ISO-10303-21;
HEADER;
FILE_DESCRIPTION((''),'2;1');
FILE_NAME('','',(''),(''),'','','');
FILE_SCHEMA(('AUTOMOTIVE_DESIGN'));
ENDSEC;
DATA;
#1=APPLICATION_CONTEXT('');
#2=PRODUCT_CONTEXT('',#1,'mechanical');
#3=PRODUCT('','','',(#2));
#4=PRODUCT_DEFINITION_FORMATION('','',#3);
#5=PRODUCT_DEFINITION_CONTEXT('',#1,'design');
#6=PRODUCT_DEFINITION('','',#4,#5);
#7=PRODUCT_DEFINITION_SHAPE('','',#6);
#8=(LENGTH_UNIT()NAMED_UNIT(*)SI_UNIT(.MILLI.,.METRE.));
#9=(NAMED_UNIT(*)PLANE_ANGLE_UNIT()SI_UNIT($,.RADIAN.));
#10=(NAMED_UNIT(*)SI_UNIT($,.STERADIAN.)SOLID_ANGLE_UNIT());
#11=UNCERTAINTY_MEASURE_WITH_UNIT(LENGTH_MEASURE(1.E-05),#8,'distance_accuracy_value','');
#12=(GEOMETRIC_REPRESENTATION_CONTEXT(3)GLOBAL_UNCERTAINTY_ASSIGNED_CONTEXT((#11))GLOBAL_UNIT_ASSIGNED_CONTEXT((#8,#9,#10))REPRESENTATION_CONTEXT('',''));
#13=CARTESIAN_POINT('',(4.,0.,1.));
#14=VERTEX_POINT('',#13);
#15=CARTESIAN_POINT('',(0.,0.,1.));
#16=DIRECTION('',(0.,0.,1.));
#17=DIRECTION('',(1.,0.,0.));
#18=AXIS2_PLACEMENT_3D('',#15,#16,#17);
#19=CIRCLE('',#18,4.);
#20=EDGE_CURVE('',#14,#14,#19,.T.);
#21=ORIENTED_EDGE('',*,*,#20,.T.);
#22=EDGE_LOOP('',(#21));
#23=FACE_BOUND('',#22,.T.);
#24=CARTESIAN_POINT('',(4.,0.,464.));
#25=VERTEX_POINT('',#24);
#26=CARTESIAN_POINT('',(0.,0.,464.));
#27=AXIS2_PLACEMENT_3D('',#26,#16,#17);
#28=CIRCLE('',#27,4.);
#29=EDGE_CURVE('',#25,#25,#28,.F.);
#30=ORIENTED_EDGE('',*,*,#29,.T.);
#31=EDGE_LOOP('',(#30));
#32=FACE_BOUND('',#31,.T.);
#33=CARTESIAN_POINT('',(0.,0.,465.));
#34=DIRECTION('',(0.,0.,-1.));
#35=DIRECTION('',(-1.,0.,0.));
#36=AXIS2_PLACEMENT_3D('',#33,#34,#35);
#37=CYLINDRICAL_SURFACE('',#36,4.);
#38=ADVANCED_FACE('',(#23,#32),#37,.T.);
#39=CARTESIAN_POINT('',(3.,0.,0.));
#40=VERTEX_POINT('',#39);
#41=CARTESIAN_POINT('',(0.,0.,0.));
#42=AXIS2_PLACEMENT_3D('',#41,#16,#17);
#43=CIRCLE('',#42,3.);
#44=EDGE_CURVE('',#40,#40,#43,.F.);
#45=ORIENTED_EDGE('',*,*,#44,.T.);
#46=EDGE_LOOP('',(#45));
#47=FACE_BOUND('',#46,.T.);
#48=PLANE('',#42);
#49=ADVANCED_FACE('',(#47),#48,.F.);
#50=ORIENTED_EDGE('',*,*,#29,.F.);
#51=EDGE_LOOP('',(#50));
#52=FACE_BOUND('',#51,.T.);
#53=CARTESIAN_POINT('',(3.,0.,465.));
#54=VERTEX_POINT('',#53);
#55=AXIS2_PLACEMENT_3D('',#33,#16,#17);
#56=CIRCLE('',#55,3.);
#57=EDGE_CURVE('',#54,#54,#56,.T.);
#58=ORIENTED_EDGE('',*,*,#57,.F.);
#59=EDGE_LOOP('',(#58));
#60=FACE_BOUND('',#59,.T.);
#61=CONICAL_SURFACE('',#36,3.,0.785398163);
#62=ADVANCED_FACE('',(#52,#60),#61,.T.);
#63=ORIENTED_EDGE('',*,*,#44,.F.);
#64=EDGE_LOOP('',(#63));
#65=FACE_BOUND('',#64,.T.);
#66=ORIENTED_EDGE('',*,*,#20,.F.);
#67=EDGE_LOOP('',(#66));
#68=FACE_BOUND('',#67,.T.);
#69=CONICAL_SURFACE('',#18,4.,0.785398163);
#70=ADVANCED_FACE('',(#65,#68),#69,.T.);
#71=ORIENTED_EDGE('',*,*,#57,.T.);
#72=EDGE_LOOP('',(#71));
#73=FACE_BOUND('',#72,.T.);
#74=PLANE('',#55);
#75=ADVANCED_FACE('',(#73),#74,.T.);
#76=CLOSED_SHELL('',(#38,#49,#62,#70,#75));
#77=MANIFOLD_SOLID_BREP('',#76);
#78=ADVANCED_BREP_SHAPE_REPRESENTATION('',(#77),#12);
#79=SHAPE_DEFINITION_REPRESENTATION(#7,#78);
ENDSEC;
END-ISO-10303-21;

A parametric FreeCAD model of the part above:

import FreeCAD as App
import Part
import Sketcher
from FreeCAD import Vector


def edges_at(feature, points):
    """Names of the edges that pass closest to the given points."""
    edges = feature.Shape.Edges
    near = lambda p: min(range(len(edges)), key=lambda i: edges[i].distToShape(Part.Vertex(*p))[0])
    return sorted({f"Edge{near(p) + 1}" for p in points})

doc = App.newDocument("Part")
body = doc.addObject("PartDesign::Body", "Body")

sketch1 = body.newObject("Sketcher::SketchObject", "Sketch")
sketch1.AttachmentSupport = (doc.getObject("XY_Plane"), [""])
sketch1.MapMode = "FlatFace"
sketch1.addGeometry(Part.Circle(Vector(0, 0, 0), Vector(0, 0, 1), 4), False)
sketch1.addConstraint([
    Sketcher.Constraint("Coincident", 0, 3, -1, 1),
    Sketcher.Constraint("Diameter", 0, 8.0),
])
pad1 = body.newObject("PartDesign::Pad", "Pad")
pad1.Profile = sketch1
pad1.Length = 465
doc.recompute()

chamfer = body.newObject("PartDesign::Chamfer", "Chamfer")
chamfer.Base = (pad1, edges_at(pad1, [(-4, 0, 0), (-4, 0, 465)]))
chamfer.Size = 1

doc.recompute()
